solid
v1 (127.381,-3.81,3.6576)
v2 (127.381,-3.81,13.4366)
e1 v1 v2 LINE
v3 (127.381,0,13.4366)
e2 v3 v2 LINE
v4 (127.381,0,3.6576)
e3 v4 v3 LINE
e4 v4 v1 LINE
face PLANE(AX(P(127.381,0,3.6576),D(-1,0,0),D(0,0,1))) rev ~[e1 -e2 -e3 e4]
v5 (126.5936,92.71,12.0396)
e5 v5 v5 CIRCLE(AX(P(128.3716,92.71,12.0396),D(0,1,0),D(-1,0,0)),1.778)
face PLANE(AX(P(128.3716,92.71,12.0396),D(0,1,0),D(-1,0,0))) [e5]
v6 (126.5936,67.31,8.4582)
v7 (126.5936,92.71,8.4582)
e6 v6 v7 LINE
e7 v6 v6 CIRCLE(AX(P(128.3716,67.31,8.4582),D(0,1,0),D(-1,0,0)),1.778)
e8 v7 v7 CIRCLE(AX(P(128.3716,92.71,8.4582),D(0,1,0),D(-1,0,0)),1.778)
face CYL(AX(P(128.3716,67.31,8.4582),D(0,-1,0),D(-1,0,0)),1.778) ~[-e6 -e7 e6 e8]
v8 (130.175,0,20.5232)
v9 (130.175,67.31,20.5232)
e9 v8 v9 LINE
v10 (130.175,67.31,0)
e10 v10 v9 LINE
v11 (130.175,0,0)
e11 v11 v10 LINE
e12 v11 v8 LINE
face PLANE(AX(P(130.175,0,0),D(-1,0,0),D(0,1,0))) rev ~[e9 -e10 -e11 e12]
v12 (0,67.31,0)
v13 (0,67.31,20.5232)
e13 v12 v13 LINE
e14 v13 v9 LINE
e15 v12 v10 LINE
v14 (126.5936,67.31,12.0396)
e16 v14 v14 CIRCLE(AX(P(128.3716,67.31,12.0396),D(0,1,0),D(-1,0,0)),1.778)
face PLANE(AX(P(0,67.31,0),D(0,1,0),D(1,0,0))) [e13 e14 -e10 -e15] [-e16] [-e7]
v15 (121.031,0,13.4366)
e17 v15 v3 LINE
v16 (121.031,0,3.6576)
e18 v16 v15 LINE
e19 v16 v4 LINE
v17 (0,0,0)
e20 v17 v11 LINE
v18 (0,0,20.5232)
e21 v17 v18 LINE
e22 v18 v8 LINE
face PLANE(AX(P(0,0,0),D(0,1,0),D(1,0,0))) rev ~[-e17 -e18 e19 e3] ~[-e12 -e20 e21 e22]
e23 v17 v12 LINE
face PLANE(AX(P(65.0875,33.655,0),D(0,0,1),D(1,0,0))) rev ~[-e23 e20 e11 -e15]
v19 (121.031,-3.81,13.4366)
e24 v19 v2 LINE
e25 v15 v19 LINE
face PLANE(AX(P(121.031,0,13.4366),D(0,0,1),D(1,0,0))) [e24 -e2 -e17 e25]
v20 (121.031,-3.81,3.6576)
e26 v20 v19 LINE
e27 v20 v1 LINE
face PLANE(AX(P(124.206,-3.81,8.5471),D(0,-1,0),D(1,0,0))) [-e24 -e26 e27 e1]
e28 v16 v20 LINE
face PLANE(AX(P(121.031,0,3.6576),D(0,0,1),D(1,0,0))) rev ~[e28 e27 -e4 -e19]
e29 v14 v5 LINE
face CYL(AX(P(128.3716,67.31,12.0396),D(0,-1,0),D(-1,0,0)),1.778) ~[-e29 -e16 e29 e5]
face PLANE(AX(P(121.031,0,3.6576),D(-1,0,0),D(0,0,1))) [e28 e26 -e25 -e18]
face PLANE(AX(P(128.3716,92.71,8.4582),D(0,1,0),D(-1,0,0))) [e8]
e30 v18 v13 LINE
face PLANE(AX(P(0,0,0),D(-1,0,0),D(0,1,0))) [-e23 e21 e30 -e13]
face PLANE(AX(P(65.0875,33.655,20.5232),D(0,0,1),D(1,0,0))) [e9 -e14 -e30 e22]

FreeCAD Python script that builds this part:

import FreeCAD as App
import Part
import Sketcher
from FreeCAD import Vector
Q = App.Units.Quantity


def add_polygon(sketch, points):
    """Adds a closed chain of lines whose ends are joined by coincident constraints."""
    first, n = sketch.GeometryCount, len(points)
    for a, b in zip(points, points[1:] + points[:1]):
        sketch.addGeometry(Part.LineSegment(App.Vector(*a, 0), App.Vector(*b, 0)), False)
    for i in range(n):
        sketch.addConstraint(Sketcher.Constraint("Coincident", first + i, 2, first + (i + 1) % n, 1))

doc = App.newDocument("Part")
params = doc.addObject("Spreadsheet::Sheet", "Params")
for row, (alias, value) in enumerate([
    ("sketch1_height", "2.65 in"),
    ("sketch1_width", "5.125 in"),
    ("pad1_length", "0.808 in"),
    ("sketch2_width", "0.25 in"),
    ("sketch2_height", "0.385 in"),
    ("pad2_length", "0.15 in"),
    ("sketch3_diameter", "0.14 in"),
    ("pad3_length", "1 in"),
], start=1):
    params.set(f"A{row}", alias)
    params.set(f"B{row}", "=" + value)
    params.setAlias(f"B{row}", alias)

body = doc.addObject("PartDesign::Body", "Body")

# Sketch on XY plane
sketch1 = body.newObject("Sketcher::SketchObject", "Sketch")
sketch1.AttachmentSupport = (doc.getObject("XY_Plane"), [""])
sketch1.MapMode = "FlatFace"
add_polygon(sketch1, [(0, 67), (0, 0), (130, 0), (130, 67)])  # lines 0-3
sketch1.addConstraint(Sketcher.Constraint("Vertical", 0))
sketch1.addConstraint(Sketcher.Constraint("Horizontal", 1))
sketch1.addConstraint(Sketcher.Constraint("Vertical", 2))
sketch1.addConstraint(Sketcher.Constraint("Horizontal", 3))
sketch1.addConstraint(Sketcher.Constraint("Coincident", 0, 2, -1, 1))
sketch1.addConstraint(Sketcher.Constraint("DistanceY", 0, 2, 0, 1, Q("2.65 in")))
sketch1.addConstraint(Sketcher.Constraint("DistanceX", 1, 1, 1, 2, Q("5.125 in")))
sketch1.setExpression("Constraints[9]", "Params.sketch1_height")
sketch1.setExpression("Constraints[10]", "Params.sketch1_width")
pad1 = body.newObject("PartDesign::Pad", "Pad")
pad1.Profile = sketch1
pad1.setExpression("Length", "Params.pad1_length")

# Sketch on XZ plane
sketch2 = body.newObject("Sketcher::SketchObject", "Sketch001")
sketch2.AttachmentSupport = (doc.getObject("XZ_Plane"), [""])
sketch2.MapMode = "FlatFace"
add_polygon(sketch2, [(121, 13), (121, 4), (127, 4), (127, 13)])  # lines 0-3
sketch2.addConstraint(Sketcher.Constraint("Vertical", 0))
sketch2.addConstraint(Sketcher.Constraint("Horizontal", 1))
sketch2.addConstraint(Sketcher.Constraint("Vertical", 2))
sketch2.addConstraint(Sketcher.Constraint("Horizontal", 3))
sketch2.addConstraint(Sketcher.Constraint("DistanceX", 1, 1, 1, 2, Q("0.25 in")))
sketch2.addConstraint(Sketcher.Constraint("DistanceY", 0, 2, 0, 1, Q("0.385 in")))
sketch2.addConstraint(Sketcher.Constraint("DistanceX", -1, 1, 0, 2, Q("4.765 in")))
sketch2.addConstraint(Sketcher.Constraint("DistanceY", -1, 1, 0, 2, Q("0.144 in")))
sketch2.setExpression("Constraints[8]", "Params.sketch2_width")
sketch2.setExpression("Constraints[9]", "Params.sketch2_height")
pad2 = body.newObject("PartDesign::Pad", "Pad001")
pad2.Profile = sketch2
pad2.setExpression("Length", "Params.pad2_length")

# Sketch on XZ plane
sketch3 = body.newObject("Sketcher::SketchObject", "Sketch002")
sketch3.AttachmentSupport = (doc.getObject("XZ_Plane"), [""])
sketch3.MapMode = "FlatFace"
sketch3.AttachmentOffset = App.Placement(Vector(0, 0, -2.65 * 25.4), App.Rotation())
sketch3.addGeometry(Part.Circle(Vector(128.4, 8.5, 0), Vector(0, 0, 1), 1.8), False)
sketch3.addGeometry(Part.Circle(Vector(128.4, 12, 0), Vector(0, 0, 1), 1.8), False)
sketch3.addConstraint(Sketcher.Constraint("Equal", 0, 1))
sketch3.addConstraint(Sketcher.Constraint("Vertical", 0, 3, 1, 3))
sketch3.addConstraint(Sketcher.Constraint("Diameter", 0, Q("0.14 in")))
sketch3.addConstraint(Sketcher.Constraint("DistanceX", -1, 1, 0, 3, Q("5.054 in")))
sketch3.addConstraint(Sketcher.Constraint("DistanceY", -1, 1, 0, 3, Q("0.333 in")))
sketch3.addConstraint(Sketcher.Constraint("DistanceY", -1, 1, 1, 3, Q("0.474 in")))
sketch3.setExpression("Constraints[2]", "Params.sketch3_diameter")
pad3 = body.newObject("PartDesign::Pad", "Pad002")
pad3.Profile = sketch3
pad3.setExpression("Length", "Params.pad3_length")
pad3.Reversed = True

doc.recompute()
